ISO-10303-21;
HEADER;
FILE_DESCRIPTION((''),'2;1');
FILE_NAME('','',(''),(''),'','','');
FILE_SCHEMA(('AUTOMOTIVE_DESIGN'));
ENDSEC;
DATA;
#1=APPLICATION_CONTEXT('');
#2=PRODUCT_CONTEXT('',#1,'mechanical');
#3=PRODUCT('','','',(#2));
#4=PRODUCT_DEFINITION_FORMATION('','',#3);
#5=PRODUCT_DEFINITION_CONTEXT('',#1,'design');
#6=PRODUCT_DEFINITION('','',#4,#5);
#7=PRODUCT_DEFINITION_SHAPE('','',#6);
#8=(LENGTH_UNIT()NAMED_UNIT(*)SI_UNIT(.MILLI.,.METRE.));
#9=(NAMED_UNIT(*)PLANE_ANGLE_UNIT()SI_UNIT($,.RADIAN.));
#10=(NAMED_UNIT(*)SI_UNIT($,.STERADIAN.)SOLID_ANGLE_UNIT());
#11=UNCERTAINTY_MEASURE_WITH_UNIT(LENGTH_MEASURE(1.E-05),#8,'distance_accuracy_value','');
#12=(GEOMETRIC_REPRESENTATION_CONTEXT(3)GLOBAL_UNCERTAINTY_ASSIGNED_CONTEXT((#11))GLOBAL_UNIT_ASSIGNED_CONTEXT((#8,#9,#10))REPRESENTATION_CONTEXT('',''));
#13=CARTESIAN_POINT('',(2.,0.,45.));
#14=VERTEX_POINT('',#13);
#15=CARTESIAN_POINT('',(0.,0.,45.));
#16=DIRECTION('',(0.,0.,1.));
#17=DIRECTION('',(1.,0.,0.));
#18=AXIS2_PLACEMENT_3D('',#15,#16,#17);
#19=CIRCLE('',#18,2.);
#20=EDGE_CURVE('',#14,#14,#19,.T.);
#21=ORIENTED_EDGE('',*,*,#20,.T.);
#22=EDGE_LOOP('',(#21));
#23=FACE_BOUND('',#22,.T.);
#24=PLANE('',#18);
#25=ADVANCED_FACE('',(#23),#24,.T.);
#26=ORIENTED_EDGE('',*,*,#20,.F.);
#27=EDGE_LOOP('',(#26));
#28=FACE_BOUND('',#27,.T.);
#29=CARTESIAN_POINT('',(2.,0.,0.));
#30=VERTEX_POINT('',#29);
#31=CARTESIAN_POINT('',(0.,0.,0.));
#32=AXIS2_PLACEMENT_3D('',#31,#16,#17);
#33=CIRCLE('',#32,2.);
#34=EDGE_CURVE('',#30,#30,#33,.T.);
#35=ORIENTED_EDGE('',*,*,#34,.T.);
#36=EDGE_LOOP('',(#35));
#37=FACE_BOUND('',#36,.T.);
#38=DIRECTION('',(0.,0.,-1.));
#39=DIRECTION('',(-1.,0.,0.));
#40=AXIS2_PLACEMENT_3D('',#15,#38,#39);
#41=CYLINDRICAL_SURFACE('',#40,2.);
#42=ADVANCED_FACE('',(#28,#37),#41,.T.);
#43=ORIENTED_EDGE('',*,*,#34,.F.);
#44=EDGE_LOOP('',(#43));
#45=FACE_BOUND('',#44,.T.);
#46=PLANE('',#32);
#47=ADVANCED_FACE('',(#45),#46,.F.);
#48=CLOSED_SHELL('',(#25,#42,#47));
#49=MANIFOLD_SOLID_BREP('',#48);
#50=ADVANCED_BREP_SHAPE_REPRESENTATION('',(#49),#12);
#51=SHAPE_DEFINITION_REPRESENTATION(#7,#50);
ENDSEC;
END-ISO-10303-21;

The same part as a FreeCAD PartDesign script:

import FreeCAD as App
import Part
import Sketcher

doc = App.newDocument("Part")
body = doc.addObject("PartDesign::Body", "Body")

# Sketch on XY plane
sketch1 = body.newObject("Sketcher::SketchObject", "Sketch")
sketch1.AttachmentSupport = (doc.getObject("XY_Plane"), [""])
sketch1.MapMode = "FlatFace"
sketch1.addGeometry(Part.Circle(App.Vector(0, 0, 0), App.Vector(0, 0, 1), 2), False)
sketch1.addConstraint([
    Sketcher.Constraint("Coincident", 0, 3, -1, 1),
    Sketcher.Constraint("Diameter", 0, 4.0),
])
pad1 = body.newObject("PartDesign::Pad", "Pad")
pad1.Profile = sketch1
pad1.Length = 45

doc.recompute()
